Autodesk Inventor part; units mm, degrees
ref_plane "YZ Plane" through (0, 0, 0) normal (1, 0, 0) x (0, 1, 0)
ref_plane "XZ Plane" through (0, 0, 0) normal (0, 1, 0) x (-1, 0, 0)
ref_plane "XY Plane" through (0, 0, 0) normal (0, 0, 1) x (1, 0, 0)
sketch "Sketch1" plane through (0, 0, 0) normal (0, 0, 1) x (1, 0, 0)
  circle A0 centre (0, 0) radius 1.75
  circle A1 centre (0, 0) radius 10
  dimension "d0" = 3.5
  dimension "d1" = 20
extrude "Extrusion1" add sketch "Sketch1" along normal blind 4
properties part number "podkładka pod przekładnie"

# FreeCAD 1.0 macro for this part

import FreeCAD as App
import Part
import Sketcher
from FreeCAD import Vector

doc = App.newDocument("Part")
params = doc.addObject("Spreadsheet::Sheet", "Params")
for row, (alias, value) in enumerate([
    ("sketch1_diameter", "20 mm"),
    ("sketch1_diameter2", "3.5 mm"),
    ("pad1_length", "4 mm"),
], start=1):
    params.set(f"A{row}", alias)
    params.set(f"B{row}", "=" + value)
    params.setAlias(f"B{row}", alias)

body = doc.addObject("PartDesign::Body", "Body")

# Sketch on XY plane
sketch1 = body.newObject("Sketcher::SketchObject", "Sketch")
sketch1.AttachmentSupport = (doc.getObject("XY_Plane"), [""])
sketch1.MapMode = "FlatFace"
sketch1.addGeometry(Part.Circle(Vector(0, 0, 0), Vector(0, 0, 1), 10), False)
sketch1.addGeometry(Part.Circle(Vector(0, 0, 0), Vector(0, 0, 1), 1.75), False)
sketch1.addConstraint(Sketcher.Constraint("Coincident", 0, 3, -1, 1))
sketch1.addConstraint(Sketcher.Constraint("Coincident", 1, 3, -1, 1))
sketch1.addConstraint(Sketcher.Constraint("Diameter", 0, 20.0))
sketch1.addConstraint(Sketcher.Constraint("Diameter", 1, 3.5))
sketch1.setExpression("Constraints[2]", "Params.sketch1_diameter")
sketch1.setExpression("Constraints[3]", "Params.sketch1_diameter2")
pad1 = body.newObject("PartDesign::Pad", "Pad")
pad1.Profile = sketch1
pad1.setExpression("Length", "Params.pad1_length")

doc.recompute()
